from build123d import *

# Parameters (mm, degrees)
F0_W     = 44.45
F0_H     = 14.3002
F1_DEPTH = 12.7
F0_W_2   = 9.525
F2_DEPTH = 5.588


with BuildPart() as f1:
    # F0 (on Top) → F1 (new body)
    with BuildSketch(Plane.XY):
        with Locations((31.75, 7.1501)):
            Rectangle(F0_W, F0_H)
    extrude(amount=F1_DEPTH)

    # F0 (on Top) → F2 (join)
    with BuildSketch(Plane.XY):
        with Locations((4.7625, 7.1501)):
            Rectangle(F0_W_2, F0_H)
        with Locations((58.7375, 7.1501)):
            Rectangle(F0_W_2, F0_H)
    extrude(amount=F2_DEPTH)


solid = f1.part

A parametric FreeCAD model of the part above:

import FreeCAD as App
import Part
import Sketcher
from FreeCAD import Vector
Q = App.Units.Quantity

doc = App.newDocument("Part")
body = doc.addObject("PartDesign::Body", "Body")

sketch1 = body.newObject("Sketcher::SketchObject", "Sketch")
sketch1.AttachmentSupport = (doc.getObject("XY_Plane"), [""])
sketch1.MapMode = "FlatFace"
sketch1.addGeometry([
    Part.LineSegment(Vector(10, 14, 0), Vector(10, 0, 0)),
    Part.LineSegment(Vector(10, 0, 0), Vector(54, 0, 0)),
    Part.LineSegment(Vector(54, 0, 0), Vector(54, 14, 0)),
    Part.LineSegment(Vector(54, 14, 0), Vector(10, 14, 0)),
], False)
sketch1.addConstraint([
    Sketcher.Constraint("Coincident", 0, 2, 1, 1),
    Sketcher.Constraint("Coincident", 1, 2, 2, 1),
    Sketcher.Constraint("Coincident", 2, 2, 3, 1),
    Sketcher.Constraint("Coincident", 3, 2, 0, 1),
    Sketcher.Constraint("Vertical", 0),
    Sketcher.Constraint("Horizontal", 1),
    Sketcher.Constraint("Vertical", 2),
    Sketcher.Constraint("Horizontal", 3),
    Sketcher.Constraint("PointOnObject", 0, 2, -1),
    Sketcher.Constraint("DistanceX", 1, 1, 1, 2, Q("1.75 in")),
    Sketcher.Constraint("DistanceY", 0, 2, 0, 1, Q("0.563 in")),
    Sketcher.Constraint("DistanceX", -1, 1, 0, 2, Q("0.375 in")),
])
pad1 = body.newObject("PartDesign::Pad", "Pad")
pad1.Profile = sketch1
pad1.Length = Q("0.5 in")

sketch2 = body.newObject("Sketcher::SketchObject", "Sketch001")
sketch2.AttachmentSupport = (doc.getObject("XY_Plane"), [""])
sketch2.MapMode = "FlatFace"
sketch2.addGeometry([
    Part.LineSegment(Vector(0, 14, 0), Vector(0, 0, 0)),
    Part.LineSegment(Vector(0, 0, 0), Vector(10, 0, 0)),
    Part.LineSegment(Vector(10, 0, 0), Vector(10, 14, 0)),
    Part.LineSegment(Vector(10, 14, 0), Vector(0, 14, 0)),
    Part.LineSegment(Vector(54, 14, 0), Vector(54, 0, 0)),
    Part.LineSegment(Vector(54, 0, 0), Vector(64, 0, 0)),
    Part.LineSegment(Vector(64, 0, 0), Vector(64, 14, 0)),
    Part.LineSegment(Vector(64, 14, 0), Vector(54, 14, 0)),
], False)
sketch2.addConstraint([
    Sketcher.Constraint("Coincident", 0, 2, 1, 1),
    Sketcher.Constraint("Coincident", 1, 2, 2, 1),
    Sketcher.Constraint("Coincident", 2, 2, 3, 1),
    Sketcher.Constraint("Coincident", 3, 2, 0, 1),
    Sketcher.Constraint("Coincident", 4, 2, 5, 1),
    Sketcher.Constraint("Coincident", 5, 2, 6, 1),
    Sketcher.Constraint("Coincident", 6, 2, 7, 1),
    Sketcher.Constraint("Coincident", 7, 2, 4, 1),
    Sketcher.Constraint("Vertical", 0),
    Sketcher.Constraint("Horizontal", 1),
    Sketcher.Constraint("Vertical", 2),
    Sketcher.Constraint("Horizontal", 3),
    Sketcher.Constraint("Vertical", 4),
    Sketcher.Constraint("Horizontal", 5),
    Sketcher.Constraint("Vertical", 6),
    Sketcher.Constraint("Horizontal", 7),
    Sketcher.Constraint("Coincident", 0, 2, -1, 1),
    Sketcher.Constraint("PointOnObject", 4, 2, -1),
    Sketcher.Constraint("Horizontal", 3, 2, 6, 2),
    Sketcher.Constraint("Equal", 3, 5),
    Sketcher.Constraint("DistanceX", -1, 1, 5, 2, Q("2.5 in")),
    Sketcher.Constraint("DistanceX", 1, 1, 1, 2, Q("0.375 in")),
    Sketcher.Constraint("DistanceY", 0, 2, 0, 1, Q("0.563 in")),
])
pad2 = body.newObject("PartDesign::Pad", "Pad001")
pad2.Profile = sketch2
pad2.Length = Q("0.22 in")

doc.recompute()
